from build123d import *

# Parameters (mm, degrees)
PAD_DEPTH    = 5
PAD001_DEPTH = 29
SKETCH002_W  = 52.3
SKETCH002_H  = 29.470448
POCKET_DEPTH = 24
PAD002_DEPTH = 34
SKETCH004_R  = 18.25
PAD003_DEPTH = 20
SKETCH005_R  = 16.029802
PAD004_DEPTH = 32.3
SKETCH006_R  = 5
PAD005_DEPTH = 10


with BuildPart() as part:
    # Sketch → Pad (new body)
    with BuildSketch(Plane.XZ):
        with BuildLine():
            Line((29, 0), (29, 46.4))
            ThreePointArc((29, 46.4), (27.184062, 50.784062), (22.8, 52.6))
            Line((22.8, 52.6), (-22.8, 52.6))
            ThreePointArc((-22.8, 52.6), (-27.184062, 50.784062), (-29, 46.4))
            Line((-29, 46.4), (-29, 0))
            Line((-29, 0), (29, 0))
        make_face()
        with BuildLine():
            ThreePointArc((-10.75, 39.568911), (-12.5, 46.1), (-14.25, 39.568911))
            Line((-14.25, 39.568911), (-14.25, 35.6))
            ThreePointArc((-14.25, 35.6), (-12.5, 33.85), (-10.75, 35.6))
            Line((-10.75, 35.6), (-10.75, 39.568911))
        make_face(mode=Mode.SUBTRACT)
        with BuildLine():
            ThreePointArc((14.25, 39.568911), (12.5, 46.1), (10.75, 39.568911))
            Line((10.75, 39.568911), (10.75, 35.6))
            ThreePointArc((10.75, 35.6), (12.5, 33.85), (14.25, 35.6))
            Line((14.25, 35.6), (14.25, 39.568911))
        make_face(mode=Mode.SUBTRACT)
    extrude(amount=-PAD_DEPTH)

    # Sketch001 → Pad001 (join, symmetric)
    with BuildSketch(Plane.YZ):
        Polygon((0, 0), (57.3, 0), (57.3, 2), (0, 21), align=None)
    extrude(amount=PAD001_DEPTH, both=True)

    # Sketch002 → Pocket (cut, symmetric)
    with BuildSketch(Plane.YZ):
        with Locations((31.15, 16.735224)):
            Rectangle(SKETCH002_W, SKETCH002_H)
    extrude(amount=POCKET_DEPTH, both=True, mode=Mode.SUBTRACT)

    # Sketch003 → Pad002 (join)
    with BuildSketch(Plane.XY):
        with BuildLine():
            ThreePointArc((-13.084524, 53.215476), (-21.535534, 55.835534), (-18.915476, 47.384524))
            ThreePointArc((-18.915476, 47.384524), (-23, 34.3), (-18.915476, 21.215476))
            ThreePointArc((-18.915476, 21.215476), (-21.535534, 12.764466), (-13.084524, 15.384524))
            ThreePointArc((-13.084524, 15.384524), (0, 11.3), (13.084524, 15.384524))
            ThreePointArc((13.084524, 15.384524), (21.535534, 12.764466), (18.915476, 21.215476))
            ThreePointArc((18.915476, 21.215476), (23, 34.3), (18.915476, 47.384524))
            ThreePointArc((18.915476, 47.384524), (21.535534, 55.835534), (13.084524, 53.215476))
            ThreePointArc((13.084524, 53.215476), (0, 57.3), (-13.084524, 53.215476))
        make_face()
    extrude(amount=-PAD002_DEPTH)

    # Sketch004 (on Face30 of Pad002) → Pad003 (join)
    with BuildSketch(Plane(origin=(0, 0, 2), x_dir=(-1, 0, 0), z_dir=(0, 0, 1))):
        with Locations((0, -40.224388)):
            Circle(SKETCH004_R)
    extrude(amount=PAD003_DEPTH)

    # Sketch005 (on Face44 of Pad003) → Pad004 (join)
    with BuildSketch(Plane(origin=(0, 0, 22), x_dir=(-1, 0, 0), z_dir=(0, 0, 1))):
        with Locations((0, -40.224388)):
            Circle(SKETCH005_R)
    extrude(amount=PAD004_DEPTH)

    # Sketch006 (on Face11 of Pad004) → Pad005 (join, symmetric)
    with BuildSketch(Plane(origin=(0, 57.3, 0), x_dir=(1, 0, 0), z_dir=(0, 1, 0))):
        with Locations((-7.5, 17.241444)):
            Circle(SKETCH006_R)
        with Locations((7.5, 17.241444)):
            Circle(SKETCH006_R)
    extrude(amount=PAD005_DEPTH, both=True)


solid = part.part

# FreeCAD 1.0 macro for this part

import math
import FreeCAD as App
import Part
import Sketcher
Q = App.Units.Quantity


def add_polygon(sketch, points):
    """Adds a closed chain of lines whose ends are joined by coincident constraints."""
    first, n = sketch.GeometryCount, len(points)
    for a, b in zip(points, points[1:] + points[:1]):
        sketch.addGeometry(Part.LineSegment(App.Vector(*a, 0), App.Vector(*b, 0)), False)
    for i in range(n):
        sketch.addConstraint(Sketcher.Constraint("Coincident", first + i, 2, first + (i + 1) % n, 1))

doc = App.newDocument("Part")
body = doc.addObject("PartDesign::Body", "Body")

# Sketch on XZ plane
sketch1 = body.newObject("Sketcher::SketchObject", "Sketch")
sketch1.AttachmentSupport = (doc.getObject("XZ_Plane"), [""])
sketch1.MapMode = "FlatFace"
sketch1.addGeometry(Part.LineSegment(App.Vector(29, 0, 0), App.Vector(29, 46.4, 0)), False)
sketch1.addGeometry(Part.ArcOfCircle(Part.Circle(App.Vector(22.8, 46.4, 0), App.Vector(0, 0, 1), 6.2), math.radians(0), math.radians(90)), False)
sketch1.addGeometry(Part.LineSegment(App.Vector(22.8, 52.6, 0), App.Vector(-22.8, 52.6, 0)), False)
sketch1.addGeometry(Part.ArcOfCircle(Part.Circle(App.Vector(-22.8, 46.4, 0), App.Vector(0, 0, 1), 6.2), math.radians(90), math.radians(180)), False)
sketch1.addGeometry(Part.LineSegment(App.Vector(-29, 46.4, 0), App.Vector(-29, 0, 0)), False)
sketch1.addGeometry(Part.LineSegment(App.Vector(-29, 0, 0), App.Vector(29, 0, 0)), False)
sketch1.addGeometry(Part.ArcOfCircle(Part.Circle(App.Vector(-12.5, 42.6, 0), App.Vector(0, 0, 1), 3.5), math.radians(-60), math.radians(240)), False)
sketch1.addGeometry(Part.LineSegment(App.Vector(-10.8, 39.6, 0), App.Vector(-10.8, 35.6, 0)), False)
sketch1.addGeometry(Part.ArcOfCircle(Part.Circle(App.Vector(-12.5, 35.6, 0), App.Vector(0, 0, 1), 1.8), math.radians(180), math.radians(360)), False)
sketch1.addGeometry(Part.LineSegment(App.Vector(-14.2, 35.6, 0), App.Vector(-14.2, 39.6, 0)), False)
sketch1.addGeometry(Part.ArcOfCircle(Part.Circle(App.Vector(12.5, 42.6, 0), App.Vector(0, 0, 1), 3.5), math.radians(-60), math.radians(240)), False)
sketch1.addGeometry(Part.LineSegment(App.Vector(14.2, 39.6, 0), App.Vector(14.2, 35.6, 0)), False)
sketch1.addGeometry(Part.ArcOfCircle(Part.Circle(App.Vector(12.5, 35.6, 0), App.Vector(0, 0, 1), 1.8), math.radians(180), math.radians(360)), False)
sketch1.addGeometry(Part.LineSegment(App.Vector(10.8, 35.6, 0), App.Vector(10.8, 39.6, 0)), False)
sketch1.addConstraint(Sketcher.Constraint("Tangent", 0, 2, 1, 1))
sketch1.addConstraint(Sketcher.Constraint("Tangent", 1, 2, 2, 1))
sketch1.addConstraint(Sketcher.Constraint("Tangent", 2, 2, 3, 1))
sketch1.addConstraint(Sketcher.Constraint("Tangent", 3, 2, 4, 1))
sketch1.addConstraint(Sketcher.Constraint("Coincident", 4, 2, 5, 1))
sketch1.addConstraint(Sketcher.Constraint("Coincident", 5, 2, 0, 1))
sketch1.addConstraint(Sketcher.Constraint("Coincident", 6, 1, 7, 1))
sketch1.addConstraint(Sketcher.Constraint("Tangent", 7, 2, 8, 2))
sketch1.addConstraint(Sketcher.Constraint("Tangent", 8, 1, 9, 1))
sketch1.addConstraint(Sketcher.Constraint("Coincident", 9, 2, 6, 2))
sketch1.addConstraint(Sketcher.Constraint("Coincident", 10, 1, 11, 1))
sketch1.addConstraint(Sketcher.Constraint("Tangent", 11, 2, 12, 2))
sketch1.addConstraint(Sketcher.Constraint("Tangent", 12, 1, 13, 1))
sketch1.addConstraint(Sketcher.Constraint("Coincident", 13, 2, 10, 2))
sketch1.addConstraint(Sketcher.Constraint("Vertical", 0))
sketch1.addConstraint(Sketcher.Constraint("Horizontal", 2))
sketch1.addConstraint(Sketcher.Constraint("Vertical", 4))
sketch1.addConstraint(Sketcher.Constraint("Horizontal", 5))
sketch1.addConstraint(Sketcher.Constraint("Vertical", 7))
sketch1.addConstraint(Sketcher.Constraint("Vertical", 9))
sketch1.addConstraint(Sketcher.Constraint("Vertical", 11))
sketch1.addConstraint(Sketcher.Constraint("Vertical", 13))
sketch1.addConstraint(Sketcher.Constraint("Equal", 1, 3))
sketch1.addConstraint(Sketcher.Constraint("Equal", 6, 10))
sketch1.addConstraint(Sketcher.Constraint("Equal", 8, 12))
sketch1.addConstraint(Sketcher.Constraint("Symmetric", 4, 2, 5, 2, -1, 1))
sketch1.addConstraint(Sketcher.Constraint("Symmetric", 6, 3, 10, 3, -2))
sketch1.addConstraint(Sketcher.Constraint("Symmetric", 8, 3, 12, 3, -2))
sketch1.addConstraint(Sketcher.Constraint("Horizontal", 6, 1, 9, 2))
sketch1.addConstraint(Sketcher.Constraint("Radius", 1, Q("6.2 mm")))
sketch1.addConstraint(Sketcher.Constraint("Radius", 6, Q("3.5 mm")))
sketch1.addConstraint(Sketcher.Constraint("DistanceX", 5, 1, 5, 2, Q("58 mm")))
sketch1.addConstraint(Sketcher.Constraint("Radius", 8, Q("1.75 mm")))
sketch1.addConstraint(Sketcher.Constraint("DistanceY", 0, 1, 0, 2, Q("46.4 mm")))
sketch1.addConstraint(Sketcher.Constraint("DistanceY", 8, 3, 6, 3, Q("7 mm")))
sketch1.addConstraint(Sketcher.Constraint("DistanceX", 6, 3, 10, 3, Q("25 mm")))
sketch1.addConstraint(Sketcher.Constraint("DistanceY", 10, 3, 1, 2, Q("10 mm")))
pad1 = body.newObject("PartDesign::Pad", "Pad")
pad1.Profile = sketch1
pad1.Length = 5
pad1.Reversed = True

# Sketch on YZ plane
sketch2 = body.newObject("Sketcher::SketchObject", "Sketch001")
sketch2.AttachmentSupport = (doc.getObject("YZ_Plane"), [""])
sketch2.MapMode = "FlatFace"
add_polygon(sketch2, [(0, 0), (57.3, 0), (57.3, 2), (0, 21)])  # lines 0-3
sketch2.addConstraint(Sketcher.Constraint("Horizontal", 0))
sketch2.addConstraint(Sketcher.Constraint("Vertical", 1))
sketch2.addConstraint(Sketcher.Constraint("Vertical", 3))
sketch2.addConstraint(Sketcher.Constraint("Coincident", 3, 2, -1, 1))
sketch2.addConstraint(Sketcher.Constraint("DistanceY", 1, 1, 1, 2, Q("2 mm")))
sketch2.addConstraint(Sketcher.Constraint("DistanceY", 3, 2, 3, 1, Q("21 mm")))
sketch2.addConstraint(Sketcher.Constraint("DistanceX", 0, 1, 0, 2, Q("57.3 mm")))
pad2 = body.newObject("PartDesign::Pad", "Pad001")
pad2.Profile = sketch2
pad2.Length = 58
pad2.Midplane = True

# Sketch on YZ plane
sketch3 = body.newObject("Sketcher::SketchObject", "Sketch002")
sketch3.AttachmentSupport = (doc.getObject("YZ_Plane"), [""])
sketch3.MapMode = "FlatFace"
add_polygon(sketch3, [(5, 31), (5, 2), (57, 2), (57, 31)])  # lines 0-3
sketch3.addConstraint(Sketcher.Constraint("Vertical", 0))
sketch3.addConstraint(Sketcher.Constraint("Horizontal", 1))
sketch3.addConstraint(Sketcher.Constraint("Vertical", 2))
sketch3.addConstraint(Sketcher.Constraint("Horizontal", 3))
sketch3.addConstraint(Sketcher.Constraint("DistanceX", 1, 1, 1, 2, Q("52.3 mm")))
sketch3.addConstraint(Sketcher.Constraint("DistanceX", -1, 1, 0, 2, Q("5 mm")))
sketch3.addConstraint(Sketcher.Constraint("DistanceY", -1, 1, 0, 2, Q("2 mm")))
sketch3.addConstraint(Sketcher.Constraint("DistanceY", 0, 2, 0, 1, Q("29.470448 mm")))
pocket1 = body.newObject("PartDesign::Pocket", "Pocket")
pocket1.Profile = sketch3
pocket1.Length = 48
pocket1.Midplane = True

# Sketch on XY plane
sketch4 = body.newObject("Sketcher::SketchObject", "Sketch003")
sketch4.AttachmentSupport = (doc.getObject("XY_Plane"), [""])
sketch4.MapMode = "FlatFace"
sketch4.addGeometry(Part.ArcOfCircle(Part.Circle(App.Vector(-18, 52, 0), App.Vector(0, 0, 1), 5), math.radians(11), math.radians(259)), False)
sketch4.addGeometry(Part.ArcOfCircle(Part.Circle(App.Vector(0, 34, 0), App.Vector(0, 0, 1), 23), math.radians(145), math.radians(215)), False)
sketch4.addGeometry(Part.ArcOfCircle(Part.Circle(App.Vector(-18, 16, 0), App.Vector(0, 0, 1), 5), math.radians(101), math.radians(349)), False)
sketch4.addGeometry(Part.ArcOfCircle(Part.Circle(App.Vector(0, 34, 0), App.Vector(0, 0, 1), 23), math.radians(-125), math.radians(-55)), False)
sketch4.addGeometry(Part.ArcOfCircle(Part.Circle(App.Vector(18, 16, 0), App.Vector(0, 0, 1), 5), math.radians(-169), math.radians(79)), False)
sketch4.addGeometry(Part.ArcOfCircle(Part.Circle(App.Vector(0, 34, 0), App.Vector(0, 0, 1), 23), math.radians(-35), math.radians(35)), False)
sketch4.addGeometry(Part.ArcOfCircle(Part.Circle(App.Vector(18, 52, 0), App.Vector(0, 0, 1), 5), math.radians(-79), math.radians(169)), False)
sketch4.addGeometry(Part.ArcOfCircle(Part.Circle(App.Vector(0, 34, 0), App.Vector(0, 0, 1), 23), math.radians(55), math.radians(125)), False)
sketch4.addConstraint(Sketcher.Constraint("Coincident", 0, 2, 1, 1))
sketch4.addConstraint(Sketcher.Constraint("Coincident", 1, 2, 2, 1))
sketch4.addConstraint(Sketcher.Constraint("Coincident", 2, 2, 3, 1))
sketch4.addConstraint(Sketcher.Constraint("Coincident", 3, 2, 4, 1))
sketch4.addConstraint(Sketcher.Constraint("Coincident", 4, 2, 5, 1))
sketch4.addConstraint(Sketcher.Constraint("Coincident", 5, 2, 6, 1))
sketch4.addConstraint(Sketcher.Constraint("Coincident", 6, 2, 7, 1))
sketch4.addConstraint(Sketcher.Constraint("Coincident", 7, 2, 0, 1))
sketch4.addConstraint(Sketcher.Constraint("Coincident", 3, 3, 1, 3))
sketch4.addConstraint(Sketcher.Constraint("Coincident", 5, 3, 1, 3))
sketch4.addConstraint(Sketcher.Constraint("Coincident", 7, 3, 1, 3))
sketch4.addConstraint(Sketcher.Constraint("Equal", 0, 2))
sketch4.addConstraint(Sketcher.Constraint("Equal", 1, 3))
sketch4.addConstraint(Sketcher.Constraint("Equal", 2, 4))
sketch4.addConstraint(Sketcher.Constraint("Equal", 3, 5))
sketch4.addConstraint(Sketcher.Constraint("Equal", 4, 6))
sketch4.addConstraint(Sketcher.Constraint("Equal", 5, 7))
sketch4.addConstraint(Sketcher.Constraint("Symmetric", 2, 3, 4, 3, -2))
sketch4.addConstraint(Sketcher.Constraint("Symmetric", 0, 3, 6, 3, -2))
sketch4.addConstraint(Sketcher.Constraint("PointOnObject", 1, 3, -2))
sketch4.addConstraint(Sketcher.Constraint("Vertical", 0, 3, 2, 3))
sketch4.addConstraint(Sketcher.Constraint("Vertical", 0, 2, 1, 2))
sketch4.addConstraint(Sketcher.Constraint("Radius", 0, Q("5 mm")))
sketch4.addConstraint(Sketcher.Constraint("Radius", 1, Q("23 mm")))
sketch4.addConstraint(Sketcher.Constraint("DistanceX", 0, 3, -1, 1, Q("18 mm")))
sketch4.addConstraint(Sketcher.Constraint("DistanceY", 1, 3, 0, 3, Q("18 mm")))
sketch4.addConstraint(Sketcher.Constraint("DistanceY", -1, 1, 0, 3, Q("52.3 mm")))
pad3 = body.newObject("PartDesign::Pad", "Pad002")
pad3.Profile = sketch4
pad3.Length = 34
pad3.Reversed = True

# Sketch on XY plane
sketch5 = body.newObject("Sketcher::SketchObject", "Sketch004")
sketch5.AttachmentSupport = (doc.getObject("XY_Plane"), [""])
sketch5.MapMode = "FlatFace"
sketch5.AttachmentOffset = App.Placement(App.Vector(0, 0, 2), App.Rotation())
sketch5.addGeometry(Part.Circle(App.Vector(0, 40, 0), App.Vector(0, 0, 1), 18), False)
sketch5.addConstraint(Sketcher.Constraint("PointOnObject", 0, 3, -2))
sketch5.addConstraint(Sketcher.Constraint("Diameter", 0, Q("36.5 mm")))
sketch5.addConstraint(Sketcher.Constraint("DistanceY", -1, 1, 0, 3, Q("40.224388 mm")))
pad4 = body.newObject("PartDesign::Pad", "Pad003")
pad4.Profile = sketch5
pad4.Length = 20

# Sketch on XY plane
sketch6 = body.newObject("Sketcher::SketchObject", "Sketch005")
sketch6.AttachmentSupport = (doc.getObject("XY_Plane"), [""])
sketch6.MapMode = "FlatFace"
sketch6.AttachmentOffset = App.Placement(App.Vector(0, 0, 22), App.Rotation())
sketch6.addGeometry(Part.Circle(App.Vector(0, 40, 0), App.Vector(0, 0, 1), 16), False)
sketch6.addConstraint(Sketcher.Constraint("PointOnObject", 0, 3, -2))
sketch6.addConstraint(Sketcher.Constraint("Diameter", 0, Q("32.059604 mm")))
sketch6.addConstraint(Sketcher.Constraint("DistanceY", -1, 1, 0, 3, Q("40.224388 mm")))
pad5 = body.newObject("PartDesign::Pad", "Pad004")
pad5.Profile = sketch6
pad5.Length = 32.3

# Sketch on XZ plane
sketch7 = body.newObject("Sketcher::SketchObject", "Sketch006")
sketch7.AttachmentSupport = (doc.getObject("XZ_Plane"), [""])
sketch7.MapMode = "FlatFace"
sketch7.AttachmentOffset = App.Placement(App.Vector(0, 0, -57.3), App.Rotation())
sketch7.addGeometry(Part.Circle(App.Vector(-8, -17, 0), App.Vector(0, 0, 1), 5), False)
sketch7.addGeometry(Part.Circle(App.Vector(8, -17, 0), App.Vector(0, 0, 1), 5), False)
sketch7.addConstraint(Sketcher.Constraint("Equal", 0, 1))
sketch7.addConstraint(Sketcher.Constraint("Symmetric", 0, 3, 1, 3, -2))
sketch7.addConstraint(Sketcher.Constraint("Diameter", 0, Q("10 mm")))
sketch7.addConstraint(Sketcher.Constraint("DistanceX", 0, 3, 1, 3, Q("15 mm")))
sketch7.addConstraint(Sketcher.Constraint("DistanceY", 0, 3, -1, 1, Q("17.241444 mm")))
pad6 = body.newObject("PartDesign::Pad", "Pad005")
pad6.Profile = sketch7
pad6.Length = 20
pad6.Midplane = True

doc.recompute()
